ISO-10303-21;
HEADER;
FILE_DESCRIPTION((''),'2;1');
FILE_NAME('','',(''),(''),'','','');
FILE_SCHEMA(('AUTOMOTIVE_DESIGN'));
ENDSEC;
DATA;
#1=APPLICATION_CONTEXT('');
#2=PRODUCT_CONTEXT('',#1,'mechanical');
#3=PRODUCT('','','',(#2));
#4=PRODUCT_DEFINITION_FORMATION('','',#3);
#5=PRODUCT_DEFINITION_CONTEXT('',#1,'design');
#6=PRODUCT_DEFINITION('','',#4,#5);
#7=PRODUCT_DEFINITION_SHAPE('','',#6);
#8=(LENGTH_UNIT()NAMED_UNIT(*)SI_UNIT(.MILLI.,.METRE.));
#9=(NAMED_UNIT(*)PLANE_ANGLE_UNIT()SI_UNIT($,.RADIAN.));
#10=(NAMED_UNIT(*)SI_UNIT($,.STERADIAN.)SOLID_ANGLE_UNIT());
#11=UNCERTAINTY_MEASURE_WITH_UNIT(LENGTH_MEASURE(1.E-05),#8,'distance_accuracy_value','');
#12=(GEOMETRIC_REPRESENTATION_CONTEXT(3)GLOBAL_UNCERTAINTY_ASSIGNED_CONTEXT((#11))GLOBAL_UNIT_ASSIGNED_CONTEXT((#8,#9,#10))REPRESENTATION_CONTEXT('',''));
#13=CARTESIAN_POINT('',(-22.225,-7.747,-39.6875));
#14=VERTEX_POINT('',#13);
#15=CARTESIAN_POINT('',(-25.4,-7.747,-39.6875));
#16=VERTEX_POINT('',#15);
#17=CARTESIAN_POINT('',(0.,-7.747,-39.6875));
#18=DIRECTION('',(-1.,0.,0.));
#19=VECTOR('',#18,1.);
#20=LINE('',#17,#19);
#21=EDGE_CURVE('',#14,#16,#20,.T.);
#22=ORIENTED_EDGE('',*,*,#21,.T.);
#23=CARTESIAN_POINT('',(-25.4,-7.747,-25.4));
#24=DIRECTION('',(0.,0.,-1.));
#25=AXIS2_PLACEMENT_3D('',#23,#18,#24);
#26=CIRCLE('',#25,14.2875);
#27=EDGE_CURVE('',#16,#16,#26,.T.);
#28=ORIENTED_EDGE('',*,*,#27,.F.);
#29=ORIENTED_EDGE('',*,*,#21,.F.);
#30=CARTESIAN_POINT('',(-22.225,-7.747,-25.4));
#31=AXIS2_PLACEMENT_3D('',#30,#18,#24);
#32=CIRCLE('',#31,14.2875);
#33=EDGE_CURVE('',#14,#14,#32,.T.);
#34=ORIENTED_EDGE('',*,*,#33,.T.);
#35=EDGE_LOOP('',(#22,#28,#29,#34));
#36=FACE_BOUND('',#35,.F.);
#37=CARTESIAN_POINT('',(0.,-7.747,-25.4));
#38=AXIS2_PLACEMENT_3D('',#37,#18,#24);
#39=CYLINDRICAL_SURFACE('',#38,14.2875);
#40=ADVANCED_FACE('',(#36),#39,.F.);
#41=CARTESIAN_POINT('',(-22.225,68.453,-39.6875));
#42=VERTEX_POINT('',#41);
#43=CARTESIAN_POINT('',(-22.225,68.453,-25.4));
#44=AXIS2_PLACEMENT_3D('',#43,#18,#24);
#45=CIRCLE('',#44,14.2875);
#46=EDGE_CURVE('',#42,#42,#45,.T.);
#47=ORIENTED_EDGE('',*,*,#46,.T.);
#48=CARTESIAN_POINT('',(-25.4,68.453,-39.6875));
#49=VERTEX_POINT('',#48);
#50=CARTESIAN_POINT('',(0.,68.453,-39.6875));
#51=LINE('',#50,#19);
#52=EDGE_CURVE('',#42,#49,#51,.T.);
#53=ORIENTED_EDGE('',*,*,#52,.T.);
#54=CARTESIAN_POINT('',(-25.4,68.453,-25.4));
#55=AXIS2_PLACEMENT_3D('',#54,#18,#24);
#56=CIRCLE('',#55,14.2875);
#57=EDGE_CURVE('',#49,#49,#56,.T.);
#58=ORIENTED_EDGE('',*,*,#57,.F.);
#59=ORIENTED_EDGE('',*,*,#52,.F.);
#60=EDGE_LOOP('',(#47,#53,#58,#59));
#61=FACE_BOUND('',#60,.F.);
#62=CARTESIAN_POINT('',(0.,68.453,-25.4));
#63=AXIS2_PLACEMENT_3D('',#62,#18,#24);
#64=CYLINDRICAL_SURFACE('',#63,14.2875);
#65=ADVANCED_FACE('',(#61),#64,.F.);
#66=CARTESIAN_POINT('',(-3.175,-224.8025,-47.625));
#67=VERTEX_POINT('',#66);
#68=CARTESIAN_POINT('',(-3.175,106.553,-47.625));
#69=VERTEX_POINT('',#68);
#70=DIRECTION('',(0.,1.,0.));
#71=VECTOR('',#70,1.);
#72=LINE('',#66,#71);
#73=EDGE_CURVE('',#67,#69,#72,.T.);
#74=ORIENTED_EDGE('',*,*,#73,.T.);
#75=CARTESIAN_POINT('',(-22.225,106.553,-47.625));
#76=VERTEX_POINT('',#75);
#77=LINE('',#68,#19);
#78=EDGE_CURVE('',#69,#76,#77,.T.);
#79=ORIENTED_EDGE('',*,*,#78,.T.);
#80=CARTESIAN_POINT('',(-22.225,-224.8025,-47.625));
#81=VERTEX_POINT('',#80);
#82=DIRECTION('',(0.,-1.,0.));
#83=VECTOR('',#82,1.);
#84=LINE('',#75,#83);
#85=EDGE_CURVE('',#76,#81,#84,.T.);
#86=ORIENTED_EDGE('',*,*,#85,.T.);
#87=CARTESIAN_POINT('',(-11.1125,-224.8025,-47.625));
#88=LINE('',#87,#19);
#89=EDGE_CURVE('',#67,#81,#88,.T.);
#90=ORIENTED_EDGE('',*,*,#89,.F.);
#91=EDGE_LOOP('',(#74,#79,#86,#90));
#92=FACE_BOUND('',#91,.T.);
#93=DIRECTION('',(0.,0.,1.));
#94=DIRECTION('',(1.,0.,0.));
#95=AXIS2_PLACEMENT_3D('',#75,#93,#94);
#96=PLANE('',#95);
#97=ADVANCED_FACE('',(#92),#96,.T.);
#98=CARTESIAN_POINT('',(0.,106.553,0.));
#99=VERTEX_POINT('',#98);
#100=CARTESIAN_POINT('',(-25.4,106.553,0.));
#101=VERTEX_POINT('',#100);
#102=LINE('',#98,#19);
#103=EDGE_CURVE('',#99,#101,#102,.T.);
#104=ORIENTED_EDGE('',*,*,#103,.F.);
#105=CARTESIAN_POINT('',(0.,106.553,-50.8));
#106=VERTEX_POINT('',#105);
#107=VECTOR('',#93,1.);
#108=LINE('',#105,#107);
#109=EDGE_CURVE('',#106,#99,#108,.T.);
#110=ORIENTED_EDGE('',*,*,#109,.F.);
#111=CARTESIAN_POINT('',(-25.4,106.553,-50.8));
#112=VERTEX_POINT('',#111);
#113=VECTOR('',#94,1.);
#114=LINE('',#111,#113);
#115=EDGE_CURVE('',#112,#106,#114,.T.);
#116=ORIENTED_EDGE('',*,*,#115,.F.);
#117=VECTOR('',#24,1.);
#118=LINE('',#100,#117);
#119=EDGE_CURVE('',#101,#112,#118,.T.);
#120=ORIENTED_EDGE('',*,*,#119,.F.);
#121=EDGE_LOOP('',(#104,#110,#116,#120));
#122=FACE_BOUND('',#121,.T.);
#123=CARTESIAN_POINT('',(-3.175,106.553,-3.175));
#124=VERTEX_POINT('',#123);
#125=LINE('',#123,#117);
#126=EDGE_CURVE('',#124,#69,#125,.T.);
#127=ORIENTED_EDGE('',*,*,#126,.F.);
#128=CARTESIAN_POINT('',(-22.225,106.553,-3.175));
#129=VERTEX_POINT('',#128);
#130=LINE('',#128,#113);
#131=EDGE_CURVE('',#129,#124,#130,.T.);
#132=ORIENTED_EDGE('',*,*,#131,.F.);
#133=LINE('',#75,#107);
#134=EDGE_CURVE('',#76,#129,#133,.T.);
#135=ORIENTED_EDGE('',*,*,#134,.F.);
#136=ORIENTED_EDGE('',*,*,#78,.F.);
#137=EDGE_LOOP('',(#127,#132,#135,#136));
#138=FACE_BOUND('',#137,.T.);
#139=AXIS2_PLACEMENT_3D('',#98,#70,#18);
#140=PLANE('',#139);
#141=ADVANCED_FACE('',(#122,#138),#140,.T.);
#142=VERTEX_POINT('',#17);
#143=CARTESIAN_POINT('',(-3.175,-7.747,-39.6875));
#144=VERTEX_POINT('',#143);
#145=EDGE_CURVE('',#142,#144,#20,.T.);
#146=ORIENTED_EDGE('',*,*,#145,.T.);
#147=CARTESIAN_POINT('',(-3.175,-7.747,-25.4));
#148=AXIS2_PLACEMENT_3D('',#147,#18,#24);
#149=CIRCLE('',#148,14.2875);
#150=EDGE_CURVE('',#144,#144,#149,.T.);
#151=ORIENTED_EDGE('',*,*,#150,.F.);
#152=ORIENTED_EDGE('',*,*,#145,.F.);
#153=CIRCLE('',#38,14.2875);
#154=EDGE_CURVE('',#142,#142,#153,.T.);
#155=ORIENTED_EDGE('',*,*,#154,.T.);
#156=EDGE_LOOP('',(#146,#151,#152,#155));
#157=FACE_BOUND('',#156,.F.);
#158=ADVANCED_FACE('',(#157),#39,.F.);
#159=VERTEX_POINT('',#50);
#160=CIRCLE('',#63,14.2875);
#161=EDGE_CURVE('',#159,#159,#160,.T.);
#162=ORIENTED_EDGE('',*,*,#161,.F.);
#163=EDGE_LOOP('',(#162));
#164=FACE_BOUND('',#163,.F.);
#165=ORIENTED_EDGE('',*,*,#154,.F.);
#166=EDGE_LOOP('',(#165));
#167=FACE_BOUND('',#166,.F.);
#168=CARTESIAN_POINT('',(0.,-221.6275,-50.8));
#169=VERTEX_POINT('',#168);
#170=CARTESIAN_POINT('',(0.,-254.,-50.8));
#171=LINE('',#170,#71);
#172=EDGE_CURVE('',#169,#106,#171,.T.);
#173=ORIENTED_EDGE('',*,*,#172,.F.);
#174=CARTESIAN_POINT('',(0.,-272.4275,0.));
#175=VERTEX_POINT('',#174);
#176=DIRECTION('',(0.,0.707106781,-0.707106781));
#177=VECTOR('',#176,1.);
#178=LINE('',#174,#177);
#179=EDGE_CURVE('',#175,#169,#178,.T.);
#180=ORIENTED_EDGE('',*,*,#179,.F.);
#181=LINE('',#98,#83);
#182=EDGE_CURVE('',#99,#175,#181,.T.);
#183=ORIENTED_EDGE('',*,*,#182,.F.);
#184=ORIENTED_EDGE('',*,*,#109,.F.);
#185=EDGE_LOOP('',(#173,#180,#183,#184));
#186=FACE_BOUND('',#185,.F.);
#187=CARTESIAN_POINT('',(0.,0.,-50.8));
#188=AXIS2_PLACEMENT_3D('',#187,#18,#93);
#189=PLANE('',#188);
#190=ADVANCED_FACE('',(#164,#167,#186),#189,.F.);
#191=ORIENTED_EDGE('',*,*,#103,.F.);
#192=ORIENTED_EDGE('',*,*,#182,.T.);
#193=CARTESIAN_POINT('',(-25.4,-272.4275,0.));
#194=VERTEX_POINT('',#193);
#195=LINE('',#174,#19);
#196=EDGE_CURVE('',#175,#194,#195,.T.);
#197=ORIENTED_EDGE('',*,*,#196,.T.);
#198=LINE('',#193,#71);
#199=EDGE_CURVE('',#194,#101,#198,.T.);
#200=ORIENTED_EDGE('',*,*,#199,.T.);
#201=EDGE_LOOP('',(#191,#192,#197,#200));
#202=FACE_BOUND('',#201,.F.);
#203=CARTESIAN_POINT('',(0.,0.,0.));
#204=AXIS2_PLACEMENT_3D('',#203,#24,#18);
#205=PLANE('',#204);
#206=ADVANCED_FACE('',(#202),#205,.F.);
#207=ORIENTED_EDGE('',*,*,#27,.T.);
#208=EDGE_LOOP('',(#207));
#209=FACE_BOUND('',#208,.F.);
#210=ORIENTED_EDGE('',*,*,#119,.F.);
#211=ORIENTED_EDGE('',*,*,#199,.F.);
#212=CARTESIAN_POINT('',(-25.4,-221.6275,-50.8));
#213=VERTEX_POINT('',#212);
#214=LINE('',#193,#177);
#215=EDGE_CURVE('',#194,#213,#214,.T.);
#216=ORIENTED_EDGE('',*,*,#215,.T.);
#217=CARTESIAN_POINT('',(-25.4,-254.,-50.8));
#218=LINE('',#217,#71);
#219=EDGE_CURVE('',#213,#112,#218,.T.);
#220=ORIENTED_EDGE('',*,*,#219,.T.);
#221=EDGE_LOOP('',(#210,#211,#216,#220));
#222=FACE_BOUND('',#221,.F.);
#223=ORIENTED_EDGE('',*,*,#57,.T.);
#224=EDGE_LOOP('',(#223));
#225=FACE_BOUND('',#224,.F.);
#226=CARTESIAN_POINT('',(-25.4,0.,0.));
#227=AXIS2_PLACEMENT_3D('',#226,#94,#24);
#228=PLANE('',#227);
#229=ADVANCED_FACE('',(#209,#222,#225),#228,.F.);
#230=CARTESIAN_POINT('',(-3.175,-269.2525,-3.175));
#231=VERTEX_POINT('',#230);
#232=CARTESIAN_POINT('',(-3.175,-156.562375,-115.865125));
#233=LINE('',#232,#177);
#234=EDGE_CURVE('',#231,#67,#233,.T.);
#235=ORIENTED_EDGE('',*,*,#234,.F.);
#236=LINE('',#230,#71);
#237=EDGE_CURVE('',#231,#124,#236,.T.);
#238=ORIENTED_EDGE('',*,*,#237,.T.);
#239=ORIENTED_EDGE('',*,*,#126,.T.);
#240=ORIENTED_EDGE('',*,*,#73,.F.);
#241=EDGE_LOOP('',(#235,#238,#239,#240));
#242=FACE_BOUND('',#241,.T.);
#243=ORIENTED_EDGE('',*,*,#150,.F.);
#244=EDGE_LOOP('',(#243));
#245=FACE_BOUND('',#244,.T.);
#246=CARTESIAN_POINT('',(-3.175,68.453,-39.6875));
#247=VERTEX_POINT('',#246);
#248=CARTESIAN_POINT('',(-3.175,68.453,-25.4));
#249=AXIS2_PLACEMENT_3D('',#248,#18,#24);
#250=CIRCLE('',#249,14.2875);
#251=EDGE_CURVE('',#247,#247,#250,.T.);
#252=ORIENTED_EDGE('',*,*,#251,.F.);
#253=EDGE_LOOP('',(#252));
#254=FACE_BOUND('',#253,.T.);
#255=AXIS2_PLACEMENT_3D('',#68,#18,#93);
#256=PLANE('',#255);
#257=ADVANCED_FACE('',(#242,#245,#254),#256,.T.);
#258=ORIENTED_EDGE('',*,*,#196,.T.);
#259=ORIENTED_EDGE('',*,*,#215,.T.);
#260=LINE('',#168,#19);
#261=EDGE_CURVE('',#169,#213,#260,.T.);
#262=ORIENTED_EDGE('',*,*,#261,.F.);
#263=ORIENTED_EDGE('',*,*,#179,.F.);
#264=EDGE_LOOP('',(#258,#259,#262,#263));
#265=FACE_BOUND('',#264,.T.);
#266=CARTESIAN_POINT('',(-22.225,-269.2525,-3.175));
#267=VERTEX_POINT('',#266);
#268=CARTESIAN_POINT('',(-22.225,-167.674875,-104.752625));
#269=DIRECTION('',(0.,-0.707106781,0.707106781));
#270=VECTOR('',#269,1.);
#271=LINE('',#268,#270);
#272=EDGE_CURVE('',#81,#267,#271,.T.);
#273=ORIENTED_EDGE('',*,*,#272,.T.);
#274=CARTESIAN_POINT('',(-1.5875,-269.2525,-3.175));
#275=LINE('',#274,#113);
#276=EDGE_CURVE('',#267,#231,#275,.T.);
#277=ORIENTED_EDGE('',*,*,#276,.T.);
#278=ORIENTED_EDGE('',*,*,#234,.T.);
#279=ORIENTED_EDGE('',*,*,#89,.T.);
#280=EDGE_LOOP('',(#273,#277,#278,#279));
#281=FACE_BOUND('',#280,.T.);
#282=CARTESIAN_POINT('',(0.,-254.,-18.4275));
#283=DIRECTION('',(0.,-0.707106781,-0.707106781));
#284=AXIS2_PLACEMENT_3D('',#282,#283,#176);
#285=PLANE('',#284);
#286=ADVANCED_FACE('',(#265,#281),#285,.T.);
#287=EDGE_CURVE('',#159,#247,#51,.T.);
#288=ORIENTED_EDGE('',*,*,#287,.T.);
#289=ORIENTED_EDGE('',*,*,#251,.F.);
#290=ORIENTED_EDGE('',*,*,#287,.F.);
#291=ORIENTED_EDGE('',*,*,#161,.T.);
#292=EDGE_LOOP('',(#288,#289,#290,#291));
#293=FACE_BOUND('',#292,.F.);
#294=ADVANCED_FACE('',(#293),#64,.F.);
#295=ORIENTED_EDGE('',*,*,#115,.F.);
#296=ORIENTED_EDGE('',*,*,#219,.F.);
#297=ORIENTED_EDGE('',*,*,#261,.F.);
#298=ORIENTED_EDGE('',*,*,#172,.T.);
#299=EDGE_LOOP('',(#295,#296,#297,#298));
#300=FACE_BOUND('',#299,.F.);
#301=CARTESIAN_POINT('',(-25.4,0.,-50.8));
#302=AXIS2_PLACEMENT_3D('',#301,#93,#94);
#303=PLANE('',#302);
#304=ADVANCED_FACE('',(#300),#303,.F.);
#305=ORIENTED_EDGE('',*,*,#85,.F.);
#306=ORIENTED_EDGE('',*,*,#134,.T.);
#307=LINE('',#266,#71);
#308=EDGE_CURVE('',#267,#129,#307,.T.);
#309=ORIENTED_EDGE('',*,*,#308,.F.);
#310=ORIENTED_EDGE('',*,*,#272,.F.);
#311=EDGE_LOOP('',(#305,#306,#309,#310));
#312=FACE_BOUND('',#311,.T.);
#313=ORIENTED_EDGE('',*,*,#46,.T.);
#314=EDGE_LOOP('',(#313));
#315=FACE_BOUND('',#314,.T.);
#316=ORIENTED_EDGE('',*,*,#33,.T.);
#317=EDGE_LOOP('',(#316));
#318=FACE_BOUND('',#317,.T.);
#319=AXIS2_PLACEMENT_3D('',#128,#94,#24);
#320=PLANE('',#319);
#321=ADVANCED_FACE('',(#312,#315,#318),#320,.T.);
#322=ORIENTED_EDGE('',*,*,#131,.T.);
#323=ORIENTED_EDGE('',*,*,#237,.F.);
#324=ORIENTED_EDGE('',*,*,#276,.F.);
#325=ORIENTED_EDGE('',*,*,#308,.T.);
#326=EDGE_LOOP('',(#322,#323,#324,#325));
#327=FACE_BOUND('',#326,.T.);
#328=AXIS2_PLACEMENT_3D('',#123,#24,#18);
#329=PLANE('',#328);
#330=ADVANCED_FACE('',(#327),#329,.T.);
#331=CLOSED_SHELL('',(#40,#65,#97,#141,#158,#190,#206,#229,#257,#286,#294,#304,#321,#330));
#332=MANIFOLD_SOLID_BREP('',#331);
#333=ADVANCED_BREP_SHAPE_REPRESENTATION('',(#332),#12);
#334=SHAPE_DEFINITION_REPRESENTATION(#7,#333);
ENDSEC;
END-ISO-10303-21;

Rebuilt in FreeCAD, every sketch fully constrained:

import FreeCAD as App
import Part
import Sketcher
from FreeCAD import Vector
Q = App.Units.Quantity


def add_polygon(sketch, points):
    """Adds a closed chain of lines whose ends are joined by coincident constraints."""
    first, n = sketch.GeometryCount, len(points)
    for a, b in zip(points, points[1:] + points[:1]):
        sketch.addGeometry(Part.LineSegment(App.Vector(*a, 0), App.Vector(*b, 0)), False)
    for i in range(n):
        sketch.addConstraint(Sketcher.Constraint("Coincident", first + i, 2, first + (i + 1) % n, 1))

doc = App.newDocument("Part")
body = doc.addObject("PartDesign::Body", "Body")

# Sketch on XZ plane
sketch1 = doc.addObject("Sketcher::SketchObject", "Sketch")
body.addObject(sketch1)
sketch1.AttachmentSupport = (doc.XZ_Plane, [""])
sketch1.MapMode = "FlatFace"
add_polygon(sketch1, [(-25, 0), (0, 0), (0, -51), (-25, -51)])  # lines 0-3
add_polygon(sketch1, [(-3, -3), (-22, -3), (-22, -48), (-3, -48)])  # lines 4-7
sketch1.addConstraint(Sketcher.Constraint("Horizontal", 0))
sketch1.addConstraint(Sketcher.Constraint("Vertical", 1))
sketch1.addConstraint(Sketcher.Constraint("Horizontal", 2))
sketch1.addConstraint(Sketcher.Constraint("Vertical", 3))
sketch1.addConstraint(Sketcher.Constraint("Horizontal", 4))
sketch1.addConstraint(Sketcher.Constraint("Vertical", 5))
sketch1.addConstraint(Sketcher.Constraint("Horizontal", 6))
sketch1.addConstraint(Sketcher.Constraint("Vertical", 7))
sketch1.addConstraint(Sketcher.Constraint("Coincident", 0, 2, -1, 1))
sketch1.addConstraint(Sketcher.Constraint("DistanceX", 0, 1, 0, 2, Q("1 in")))
sketch1.addConstraint(Sketcher.Constraint("DistanceY", 1, 2, 1, 1, Q("2 in")))
sketch1.addConstraint(Sketcher.Constraint("DistanceY", 4, 2, -1, 1, Q("0.125 in")))
sketch1.addConstraint(Sketcher.Constraint("DistanceX", 6, 2, -1, 1, Q("0.125 in")))
sketch1.addConstraint(Sketcher.Constraint("DistanceX", 3, 2, 4, 2, Q("0.125 in")))
sketch1.addConstraint(Sketcher.Constraint("DistanceY", 2, 2, 5, 2, Q("0.125 in")))
pad1 = doc.addObject("PartDesign::Pad", "Pad")
body.addObject(pad1)
pad1.Profile = sketch1
pad1.Length = Q("4.195 in")
pad1.Reversed = True

# Sketch on YZ plane
sketch2 = doc.addObject("Sketcher::SketchObject", "Sketch001")
body.addObject(sketch2)
sketch2.AttachmentSupport = (doc.YZ_Plane, [""])
sketch2.MapMode = "FlatFace"
sketch2.addGeometry(Part.Circle(Vector(68, -25, 0), Vector(0, 0, 1), 14), False)
sketch2.addConstraint(Sketcher.Constraint("Diameter", 0, Q("1.125 in")))
sketch2.addConstraint(Sketcher.Constraint("DistanceY", 0, 3, -1, 1, Q("1 in")))
sketch2.addConstraint(Sketcher.Constraint("DistanceX", -1, 1, 0, 3, Q("2.695 in")))
doc.recompute()
hole = doc.addObject("PartDesign::Hole", "Hole")
body.addObject(hole)
hole.Profile = sketch2
hole.ThreadType = "None"
hole.Diameter = Q("1.125 in")
hole.DepthType = "ThroughAll"

# Sketch on XZ plane
sketch3 = doc.addObject("Sketcher::SketchObject", "Sketch002")
body.addObject(sketch3)
sketch3.AttachmentSupport = (doc.XZ_Plane, [""])
sketch3.MapMode = "FlatFace"
add_polygon(sketch3, [(0, -51), (0, 0), (-25, 0), (-25, -51)])  # lines 0-3
add_polygon(sketch3, [(-3, -48), (-22, -48), (-22, -3), (-3, -3)])  # lines 4-7
sketch3.addConstraint(Sketcher.Constraint("Vertical", 0))
sketch3.addConstraint(Sketcher.Constraint("Horizontal", 1))
sketch3.addConstraint(Sketcher.Constraint("Vertical", 2))
sketch3.addConstraint(Sketcher.Constraint("Horizontal", 3))
sketch3.addConstraint(Sketcher.Constraint("Horizontal", 4))
sketch3.addConstraint(Sketcher.Constraint("Vertical", 5))
sketch3.addConstraint(Sketcher.Constraint("Horizontal", 6))
sketch3.addConstraint(Sketcher.Constraint("Vertical", 7))
sketch3.addConstraint(Sketcher.Constraint("Coincident", 0, 2, -1, 1))
sketch3.addConstraint(Sketcher.Constraint("DistanceX", 1, 2, 1, 1, Q("1 in")))
sketch3.addConstraint(Sketcher.Constraint("DistanceY", 0, 1, 0, 2, Q("2 in")))
sketch3.addConstraint(Sketcher.Constraint("DistanceX", 4, 2, 4, 1, Q("0.75 in")))
sketch3.addConstraint(Sketcher.Constraint("DistanceY", 5, 1, 5, 2, Q("1.75 in")))
sketch3.addConstraint(Sketcher.Constraint("DistanceX", 4, 2, -1, 1, Q("0.875 in")))
sketch3.addConstraint(Sketcher.Constraint("DistanceY", 4, 2, -1, 1, Q("1.875 in")))
pad2 = doc.addObject("PartDesign::Pad", "Pad001")
body.addObject(pad2)
pad2.Profile = sketch3
pad2.Length = Q("10 in")

# Sketch on YZ plane
sketch4 = doc.addObject("Sketcher::SketchObject", "Sketch003")
body.addObject(sketch4)
sketch4.AttachmentSupport = (doc.YZ_Plane, [""])
sketch4.MapMode = "FlatFace"
add_polygon(sketch4, [(-222, -51), (-222, 0), (-272, 0)])  # lines 0-2
sketch4.addConstraint(Sketcher.Constraint("Vertical", 0))
sketch4.addConstraint(Sketcher.Constraint("Horizontal", 1))
sketch4.addConstraint(Sketcher.Constraint("PointOnObject", 0, 2, -1))
sketch4.addConstraint(Sketcher.Constraint("Equal", 1, 0))
sketch4.addConstraint(Sketcher.Constraint("DistanceX", 1, 2, 1, 1, Q("2 in")))
sketch4.addConstraint(Sketcher.Constraint("DistanceX", 0, 2, -1, 1, Q("8.7255 in")))
pad3 = doc.addObject("PartDesign::Pad", "Pad002")
body.addObject(pad3)
pad3.Profile = sketch4
pad3.Length = Q("1 in")
pad3.Reversed = True

# Sketch on YZ plane
sketch5 = doc.addObject("Sketcher::SketchObject", "Sketch004")
body.addObject(sketch5)
sketch5.AttachmentSupport = (doc.YZ_Plane, [""])
sketch5.MapMode = "FlatFace"
add_polygon(sketch5, [(-222, -51), (-272, 0), (-272, -51)])  # lines 0-2
sketch5.addConstraint(Sketcher.Constraint("Vertical", 1))
sketch5.addConstraint(Sketcher.Constraint("Horizontal", 2))
sketch5.addConstraint(Sketcher.Constraint("PointOnObject", 0, 2, -1))
sketch5.addConstraint(Sketcher.Constraint("Equal", 2, 1))
sketch5.addConstraint(Sketcher.Constraint("DistanceX", 2, 1, 2, 2, Q("2 in")))
sketch5.addConstraint(Sketcher.Constraint("DistanceX", 0, 2, -1, 1, Q("10.7255 in")))
pocket1 = doc.addObject("PartDesign::Pocket", "Pocket")
body.addObject(pocket1)
pocket1.Profile = sketch5
pocket1.Length = Q("1 in")

# Sketch on XZ plane
sketch6 = doc.addObject("Sketcher::SketchObject", "Sketch005")
body.addObject(sketch6)
sketch6.AttachmentSupport = (doc.XZ_Plane, [""])
sketch6.MapMode = "FlatFace"
sketch6.AttachmentOffset = App.Placement(Vector(0, 0, -4.195 * 25.4), App.Rotation())
add_polygon(sketch6, [(-22, -48), (-22, -3), (-3, -3), (-3, -48)])  # lines 0-3
sketch6.addConstraint(Sketcher.Constraint("Vertical", 0))
sketch6.addConstraint(Sketcher.Constraint("Horizontal", 1))
sketch6.addConstraint(Sketcher.Constraint("Vertical", 2))
sketch6.addConstraint(Sketcher.Constraint("Horizontal", 3))
sketch6.addConstraint(Sketcher.Constraint("DistanceX", 1, 1, 1, 2, Q("0.75 in")))
sketch6.addConstraint(Sketcher.Constraint("DistanceY", 0, 1, 0, 2, Q("1.75 in")))
sketch6.addConstraint(Sketcher.Constraint("DistanceX", 0, 2, -1, 1, Q("0.875 in")))
sketch6.addConstraint(Sketcher.Constraint("DistanceY", 0, 2, -1, 1, Q("0.125 in")))
pocket2 = doc.addObject("PartDesign::Pocket", "Pocket001")
body.addObject(pocket2)
pocket2.Profile = sketch6
pocket2.Type = "ThroughAll"
pocket2.Reversed = True

# Sketch on YZ plane
sketch7 = doc.addObject("Sketcher::SketchObject", "Sketch006")
body.addObject(sketch7)
sketch7.AttachmentSupport = (doc.YZ_Plane, [""])
sketch7.MapMode = "FlatFace"
sketch7.addGeometry(Part.Circle(Vector(-8, -25, 0), Vector(0, 0, 1), 14), False)
sketch7.addConstraint(Sketcher.Constraint("Diameter", 0, Q("1.125 in")))
sketch7.addConstraint(Sketcher.Constraint("DistanceY", 0, 3, -1, 1, Q("1 in")))
sketch7.addConstraint(Sketcher.Constraint("DistanceX", 0, 3, -1, 1, Q("0.305 in")))
doc.recompute()
hole2 = doc.addObject("PartDesign::Hole", "Hole001")
body.addObject(hole2)
hole2.Profile = sketch7
hole2.ThreadType = "None"
hole2.Diameter = Q("1.125 in")
hole2.DepthType = "ThroughAll"

doc.recompute()
